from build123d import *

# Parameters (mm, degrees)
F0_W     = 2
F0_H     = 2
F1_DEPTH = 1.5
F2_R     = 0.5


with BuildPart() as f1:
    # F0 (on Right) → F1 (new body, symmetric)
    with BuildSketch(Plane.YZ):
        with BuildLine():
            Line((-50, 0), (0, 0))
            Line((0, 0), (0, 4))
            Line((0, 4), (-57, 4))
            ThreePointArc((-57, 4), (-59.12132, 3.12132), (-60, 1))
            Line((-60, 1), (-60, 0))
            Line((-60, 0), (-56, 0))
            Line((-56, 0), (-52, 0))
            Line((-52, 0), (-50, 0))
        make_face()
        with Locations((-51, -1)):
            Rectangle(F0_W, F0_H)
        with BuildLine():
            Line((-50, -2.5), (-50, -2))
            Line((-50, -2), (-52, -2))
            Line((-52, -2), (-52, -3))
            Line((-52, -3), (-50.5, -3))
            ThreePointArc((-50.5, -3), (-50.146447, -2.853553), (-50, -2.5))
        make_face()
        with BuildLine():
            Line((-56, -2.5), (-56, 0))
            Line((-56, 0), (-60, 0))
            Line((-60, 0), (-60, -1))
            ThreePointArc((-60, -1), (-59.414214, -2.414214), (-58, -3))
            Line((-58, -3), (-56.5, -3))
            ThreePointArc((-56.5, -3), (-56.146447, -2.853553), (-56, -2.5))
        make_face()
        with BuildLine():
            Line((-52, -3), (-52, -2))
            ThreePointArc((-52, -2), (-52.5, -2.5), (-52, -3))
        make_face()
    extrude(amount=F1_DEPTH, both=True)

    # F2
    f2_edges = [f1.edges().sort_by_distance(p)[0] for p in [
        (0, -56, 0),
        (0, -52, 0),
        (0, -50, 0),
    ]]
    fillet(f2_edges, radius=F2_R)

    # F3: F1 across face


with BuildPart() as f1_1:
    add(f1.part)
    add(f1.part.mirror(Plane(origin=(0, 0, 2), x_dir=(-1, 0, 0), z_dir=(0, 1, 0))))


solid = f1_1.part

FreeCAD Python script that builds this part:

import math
import FreeCAD as App
import Part
import Sketcher


def edges_at(feature, points):
    """Names of the edges that pass closest to the given points."""
    edges = feature.Shape.Edges
    near = lambda p: min(range(len(edges)), key=lambda i: edges[i].distToShape(Part.Vertex(*p))[0])
    return sorted({f"Edge{near(p) + 1}" for p in points})

doc = App.newDocument("Part")
body = doc.addObject("PartDesign::Body", "Body")

sketch1 = body.newObject("Sketcher::SketchObject", "Sketch")
sketch1.AttachmentSupport = (doc.getObject("YZ_Plane"), [""])
sketch1.MapMode = "FlatFace"
sketch1.addGeometry([
    Part.LineSegment(App.Vector(0, 0, 0), App.Vector(0, 4, 0)),
    Part.LineSegment(App.Vector(0, 4, 0), App.Vector(-57, 4, 0)),
    Part.ArcOfCircle(Part.Circle(App.Vector(-57, 1, 0), App.Vector(0, 0, 1), 3), math.radians(90), math.radians(180)),
    Part.LineSegment(App.Vector(-60, 1, 0), App.Vector(-60, -1, 0)),
    Part.ArcOfCircle(Part.Circle(App.Vector(-58, -1, 0), App.Vector(0, 0, 1), 2), math.radians(180), math.radians(270)),
    Part.LineSegment(App.Vector(-58, -3, 0), App.Vector(-56.5, -3, 0)),
    Part.ArcOfCircle(Part.Circle(App.Vector(-56.5, -2.5, 0), App.Vector(0, 0, 1), 0.5), math.radians(-90), math.radians(0)),
    Part.LineSegment(App.Vector(-56, -2.5, 0), App.Vector(-56, 0, 0)),
    Part.LineSegment(App.Vector(-56, 0, 0), App.Vector(-52, 0, 0)),
    Part.LineSegment(App.Vector(-52, 0, 0), App.Vector(-52, -2, 0)),
    Part.ArcOfCircle(Part.Circle(App.Vector(-52, -2.5, 0), App.Vector(0, 0, 1), 0.5), math.radians(90), math.radians(270)),
    Part.LineSegment(App.Vector(-52, -3, 0), App.Vector(-50.5, -3, 0)),
    Part.ArcOfCircle(Part.Circle(App.Vector(-50.5, -2.5, 0), App.Vector(0, 0, 1), 0.5), math.radians(-90), math.radians(0)),
    Part.LineSegment(App.Vector(-50, -2.5, 0), App.Vector(-50, 0, 0)),
    Part.LineSegment(App.Vector(-50, 0, 0), App.Vector(0, 0, 0)),
], False)
sketch1.addConstraint([
    Sketcher.Constraint("Coincident", 0, 2, 1, 1),
    Sketcher.Constraint("Tangent", 1, 2, 2, 1),
    Sketcher.Constraint("Tangent", 2, 2, 3, 1),
    Sketcher.Constraint("Tangent", 3, 2, 4, 1),
    Sketcher.Constraint("Tangent", 4, 2, 5, 1),
    Sketcher.Constraint("Coincident", 5, 2, 6, 1),
    Sketcher.Constraint("Coincident", 6, 2, 7, 1),
    Sketcher.Constraint("Coincident", 7, 2, 8, 1),
    Sketcher.Constraint("Coincident", 8, 2, 9, 1),
    Sketcher.Constraint("Coincident", 9, 2, 10, 1),
    Sketcher.Constraint("Tangent", 10, 2, 11, 1),
    Sketcher.Constraint("Coincident", 11, 2, 12, 1),
    Sketcher.Constraint("Coincident", 12, 2, 13, 1),
    Sketcher.Constraint("Coincident", 13, 2, 14, 1),
    Sketcher.Constraint("Coincident", 14, 2, 0, 1),
    Sketcher.Constraint("Vertical", 0),
    Sketcher.Constraint("Horizontal", 1),
    Sketcher.Constraint("Vertical", 3),
    Sketcher.Constraint("Horizontal", 5),
    Sketcher.Constraint("Vertical", 7),
    Sketcher.Constraint("Horizontal", 8),
    Sketcher.Constraint("Vertical", 9),
    Sketcher.Constraint("Horizontal", 11),
    Sketcher.Constraint("Vertical", 13),
    Sketcher.Constraint("Horizontal", 14),
    Sketcher.Constraint("Coincident", 14, 2, -1, 1),
    Sketcher.Constraint("Equal", 6, 10),
    Sketcher.Constraint("Equal", 10, 12),
    Sketcher.Constraint("PointOnObject", 7, 2, -1),
    Sketcher.Constraint("Horizontal", 6, 3, 10, 3),
    Sketcher.Constraint("Horizontal", 12, 3, 6, 2),
    Sketcher.Constraint("Horizontal", 6, 2, 12, 2),
    Sketcher.Constraint("Vertical", 6, 3, 5, 2),
    Sketcher.Constraint("Vertical", 10, 3, 8, 2),
    Sketcher.Constraint("Vertical", 12, 3, 11, 2),
    Sketcher.Constraint("Equal", 5, 11),
    Sketcher.Constraint("Equal", 8, 0),
    Sketcher.Constraint("Equal", 3, 9),
    Sketcher.Constraint("Radius", 2, 3.000001),
    Sketcher.Constraint("Radius", 4, 1.999999),
    Sketcher.Constraint("Radius", 6, 0.500001),
    Sketcher.Constraint("DistanceX", 1, 2, 1, 1, 57.0),
    Sketcher.Constraint("DistanceX", 14, 1, 14, 2, 50.0),
    Sketcher.Constraint("DistanceY", 3, 2, 3, 1, 2.0),
])
pad1 = body.newObject("PartDesign::Pad", "Pad")
pad1.Profile = sketch1
pad1.Length = 3
pad1.Midplane = True
doc.recompute()

fillet = body.newObject("PartDesign::Fillet", "Fillet")
fillet.Base = (pad1, edges_at(pad1, [(0, -56, 0), (0, -52, 0), (0, -50, 0)]))
fillet.Radius = 0.5
body2 = doc.addObject("PartDesign::Body", "Body001")
doc.recompute()

body2.BaseFeature = body
doc.recompute()

mirroring = doc.addObject("Part::Mirroring", "Mirroring")
mirroring.Source = body
mirroring.Base = App.Vector(0, 0, 2)
mirroring.Normal = App.Vector(0, 1, 0)
body3 = doc.addObject("PartDesign::Body", "Body002")
body3.BaseFeature = mirroring
boolean = body2.newObject("PartDesign::Boolean", "Boolean")
boolean.Type = "Fuse"
boolean.addObjects([body3])
doc.recompute()
mirroring.Visibility = False

doc.recompute()
